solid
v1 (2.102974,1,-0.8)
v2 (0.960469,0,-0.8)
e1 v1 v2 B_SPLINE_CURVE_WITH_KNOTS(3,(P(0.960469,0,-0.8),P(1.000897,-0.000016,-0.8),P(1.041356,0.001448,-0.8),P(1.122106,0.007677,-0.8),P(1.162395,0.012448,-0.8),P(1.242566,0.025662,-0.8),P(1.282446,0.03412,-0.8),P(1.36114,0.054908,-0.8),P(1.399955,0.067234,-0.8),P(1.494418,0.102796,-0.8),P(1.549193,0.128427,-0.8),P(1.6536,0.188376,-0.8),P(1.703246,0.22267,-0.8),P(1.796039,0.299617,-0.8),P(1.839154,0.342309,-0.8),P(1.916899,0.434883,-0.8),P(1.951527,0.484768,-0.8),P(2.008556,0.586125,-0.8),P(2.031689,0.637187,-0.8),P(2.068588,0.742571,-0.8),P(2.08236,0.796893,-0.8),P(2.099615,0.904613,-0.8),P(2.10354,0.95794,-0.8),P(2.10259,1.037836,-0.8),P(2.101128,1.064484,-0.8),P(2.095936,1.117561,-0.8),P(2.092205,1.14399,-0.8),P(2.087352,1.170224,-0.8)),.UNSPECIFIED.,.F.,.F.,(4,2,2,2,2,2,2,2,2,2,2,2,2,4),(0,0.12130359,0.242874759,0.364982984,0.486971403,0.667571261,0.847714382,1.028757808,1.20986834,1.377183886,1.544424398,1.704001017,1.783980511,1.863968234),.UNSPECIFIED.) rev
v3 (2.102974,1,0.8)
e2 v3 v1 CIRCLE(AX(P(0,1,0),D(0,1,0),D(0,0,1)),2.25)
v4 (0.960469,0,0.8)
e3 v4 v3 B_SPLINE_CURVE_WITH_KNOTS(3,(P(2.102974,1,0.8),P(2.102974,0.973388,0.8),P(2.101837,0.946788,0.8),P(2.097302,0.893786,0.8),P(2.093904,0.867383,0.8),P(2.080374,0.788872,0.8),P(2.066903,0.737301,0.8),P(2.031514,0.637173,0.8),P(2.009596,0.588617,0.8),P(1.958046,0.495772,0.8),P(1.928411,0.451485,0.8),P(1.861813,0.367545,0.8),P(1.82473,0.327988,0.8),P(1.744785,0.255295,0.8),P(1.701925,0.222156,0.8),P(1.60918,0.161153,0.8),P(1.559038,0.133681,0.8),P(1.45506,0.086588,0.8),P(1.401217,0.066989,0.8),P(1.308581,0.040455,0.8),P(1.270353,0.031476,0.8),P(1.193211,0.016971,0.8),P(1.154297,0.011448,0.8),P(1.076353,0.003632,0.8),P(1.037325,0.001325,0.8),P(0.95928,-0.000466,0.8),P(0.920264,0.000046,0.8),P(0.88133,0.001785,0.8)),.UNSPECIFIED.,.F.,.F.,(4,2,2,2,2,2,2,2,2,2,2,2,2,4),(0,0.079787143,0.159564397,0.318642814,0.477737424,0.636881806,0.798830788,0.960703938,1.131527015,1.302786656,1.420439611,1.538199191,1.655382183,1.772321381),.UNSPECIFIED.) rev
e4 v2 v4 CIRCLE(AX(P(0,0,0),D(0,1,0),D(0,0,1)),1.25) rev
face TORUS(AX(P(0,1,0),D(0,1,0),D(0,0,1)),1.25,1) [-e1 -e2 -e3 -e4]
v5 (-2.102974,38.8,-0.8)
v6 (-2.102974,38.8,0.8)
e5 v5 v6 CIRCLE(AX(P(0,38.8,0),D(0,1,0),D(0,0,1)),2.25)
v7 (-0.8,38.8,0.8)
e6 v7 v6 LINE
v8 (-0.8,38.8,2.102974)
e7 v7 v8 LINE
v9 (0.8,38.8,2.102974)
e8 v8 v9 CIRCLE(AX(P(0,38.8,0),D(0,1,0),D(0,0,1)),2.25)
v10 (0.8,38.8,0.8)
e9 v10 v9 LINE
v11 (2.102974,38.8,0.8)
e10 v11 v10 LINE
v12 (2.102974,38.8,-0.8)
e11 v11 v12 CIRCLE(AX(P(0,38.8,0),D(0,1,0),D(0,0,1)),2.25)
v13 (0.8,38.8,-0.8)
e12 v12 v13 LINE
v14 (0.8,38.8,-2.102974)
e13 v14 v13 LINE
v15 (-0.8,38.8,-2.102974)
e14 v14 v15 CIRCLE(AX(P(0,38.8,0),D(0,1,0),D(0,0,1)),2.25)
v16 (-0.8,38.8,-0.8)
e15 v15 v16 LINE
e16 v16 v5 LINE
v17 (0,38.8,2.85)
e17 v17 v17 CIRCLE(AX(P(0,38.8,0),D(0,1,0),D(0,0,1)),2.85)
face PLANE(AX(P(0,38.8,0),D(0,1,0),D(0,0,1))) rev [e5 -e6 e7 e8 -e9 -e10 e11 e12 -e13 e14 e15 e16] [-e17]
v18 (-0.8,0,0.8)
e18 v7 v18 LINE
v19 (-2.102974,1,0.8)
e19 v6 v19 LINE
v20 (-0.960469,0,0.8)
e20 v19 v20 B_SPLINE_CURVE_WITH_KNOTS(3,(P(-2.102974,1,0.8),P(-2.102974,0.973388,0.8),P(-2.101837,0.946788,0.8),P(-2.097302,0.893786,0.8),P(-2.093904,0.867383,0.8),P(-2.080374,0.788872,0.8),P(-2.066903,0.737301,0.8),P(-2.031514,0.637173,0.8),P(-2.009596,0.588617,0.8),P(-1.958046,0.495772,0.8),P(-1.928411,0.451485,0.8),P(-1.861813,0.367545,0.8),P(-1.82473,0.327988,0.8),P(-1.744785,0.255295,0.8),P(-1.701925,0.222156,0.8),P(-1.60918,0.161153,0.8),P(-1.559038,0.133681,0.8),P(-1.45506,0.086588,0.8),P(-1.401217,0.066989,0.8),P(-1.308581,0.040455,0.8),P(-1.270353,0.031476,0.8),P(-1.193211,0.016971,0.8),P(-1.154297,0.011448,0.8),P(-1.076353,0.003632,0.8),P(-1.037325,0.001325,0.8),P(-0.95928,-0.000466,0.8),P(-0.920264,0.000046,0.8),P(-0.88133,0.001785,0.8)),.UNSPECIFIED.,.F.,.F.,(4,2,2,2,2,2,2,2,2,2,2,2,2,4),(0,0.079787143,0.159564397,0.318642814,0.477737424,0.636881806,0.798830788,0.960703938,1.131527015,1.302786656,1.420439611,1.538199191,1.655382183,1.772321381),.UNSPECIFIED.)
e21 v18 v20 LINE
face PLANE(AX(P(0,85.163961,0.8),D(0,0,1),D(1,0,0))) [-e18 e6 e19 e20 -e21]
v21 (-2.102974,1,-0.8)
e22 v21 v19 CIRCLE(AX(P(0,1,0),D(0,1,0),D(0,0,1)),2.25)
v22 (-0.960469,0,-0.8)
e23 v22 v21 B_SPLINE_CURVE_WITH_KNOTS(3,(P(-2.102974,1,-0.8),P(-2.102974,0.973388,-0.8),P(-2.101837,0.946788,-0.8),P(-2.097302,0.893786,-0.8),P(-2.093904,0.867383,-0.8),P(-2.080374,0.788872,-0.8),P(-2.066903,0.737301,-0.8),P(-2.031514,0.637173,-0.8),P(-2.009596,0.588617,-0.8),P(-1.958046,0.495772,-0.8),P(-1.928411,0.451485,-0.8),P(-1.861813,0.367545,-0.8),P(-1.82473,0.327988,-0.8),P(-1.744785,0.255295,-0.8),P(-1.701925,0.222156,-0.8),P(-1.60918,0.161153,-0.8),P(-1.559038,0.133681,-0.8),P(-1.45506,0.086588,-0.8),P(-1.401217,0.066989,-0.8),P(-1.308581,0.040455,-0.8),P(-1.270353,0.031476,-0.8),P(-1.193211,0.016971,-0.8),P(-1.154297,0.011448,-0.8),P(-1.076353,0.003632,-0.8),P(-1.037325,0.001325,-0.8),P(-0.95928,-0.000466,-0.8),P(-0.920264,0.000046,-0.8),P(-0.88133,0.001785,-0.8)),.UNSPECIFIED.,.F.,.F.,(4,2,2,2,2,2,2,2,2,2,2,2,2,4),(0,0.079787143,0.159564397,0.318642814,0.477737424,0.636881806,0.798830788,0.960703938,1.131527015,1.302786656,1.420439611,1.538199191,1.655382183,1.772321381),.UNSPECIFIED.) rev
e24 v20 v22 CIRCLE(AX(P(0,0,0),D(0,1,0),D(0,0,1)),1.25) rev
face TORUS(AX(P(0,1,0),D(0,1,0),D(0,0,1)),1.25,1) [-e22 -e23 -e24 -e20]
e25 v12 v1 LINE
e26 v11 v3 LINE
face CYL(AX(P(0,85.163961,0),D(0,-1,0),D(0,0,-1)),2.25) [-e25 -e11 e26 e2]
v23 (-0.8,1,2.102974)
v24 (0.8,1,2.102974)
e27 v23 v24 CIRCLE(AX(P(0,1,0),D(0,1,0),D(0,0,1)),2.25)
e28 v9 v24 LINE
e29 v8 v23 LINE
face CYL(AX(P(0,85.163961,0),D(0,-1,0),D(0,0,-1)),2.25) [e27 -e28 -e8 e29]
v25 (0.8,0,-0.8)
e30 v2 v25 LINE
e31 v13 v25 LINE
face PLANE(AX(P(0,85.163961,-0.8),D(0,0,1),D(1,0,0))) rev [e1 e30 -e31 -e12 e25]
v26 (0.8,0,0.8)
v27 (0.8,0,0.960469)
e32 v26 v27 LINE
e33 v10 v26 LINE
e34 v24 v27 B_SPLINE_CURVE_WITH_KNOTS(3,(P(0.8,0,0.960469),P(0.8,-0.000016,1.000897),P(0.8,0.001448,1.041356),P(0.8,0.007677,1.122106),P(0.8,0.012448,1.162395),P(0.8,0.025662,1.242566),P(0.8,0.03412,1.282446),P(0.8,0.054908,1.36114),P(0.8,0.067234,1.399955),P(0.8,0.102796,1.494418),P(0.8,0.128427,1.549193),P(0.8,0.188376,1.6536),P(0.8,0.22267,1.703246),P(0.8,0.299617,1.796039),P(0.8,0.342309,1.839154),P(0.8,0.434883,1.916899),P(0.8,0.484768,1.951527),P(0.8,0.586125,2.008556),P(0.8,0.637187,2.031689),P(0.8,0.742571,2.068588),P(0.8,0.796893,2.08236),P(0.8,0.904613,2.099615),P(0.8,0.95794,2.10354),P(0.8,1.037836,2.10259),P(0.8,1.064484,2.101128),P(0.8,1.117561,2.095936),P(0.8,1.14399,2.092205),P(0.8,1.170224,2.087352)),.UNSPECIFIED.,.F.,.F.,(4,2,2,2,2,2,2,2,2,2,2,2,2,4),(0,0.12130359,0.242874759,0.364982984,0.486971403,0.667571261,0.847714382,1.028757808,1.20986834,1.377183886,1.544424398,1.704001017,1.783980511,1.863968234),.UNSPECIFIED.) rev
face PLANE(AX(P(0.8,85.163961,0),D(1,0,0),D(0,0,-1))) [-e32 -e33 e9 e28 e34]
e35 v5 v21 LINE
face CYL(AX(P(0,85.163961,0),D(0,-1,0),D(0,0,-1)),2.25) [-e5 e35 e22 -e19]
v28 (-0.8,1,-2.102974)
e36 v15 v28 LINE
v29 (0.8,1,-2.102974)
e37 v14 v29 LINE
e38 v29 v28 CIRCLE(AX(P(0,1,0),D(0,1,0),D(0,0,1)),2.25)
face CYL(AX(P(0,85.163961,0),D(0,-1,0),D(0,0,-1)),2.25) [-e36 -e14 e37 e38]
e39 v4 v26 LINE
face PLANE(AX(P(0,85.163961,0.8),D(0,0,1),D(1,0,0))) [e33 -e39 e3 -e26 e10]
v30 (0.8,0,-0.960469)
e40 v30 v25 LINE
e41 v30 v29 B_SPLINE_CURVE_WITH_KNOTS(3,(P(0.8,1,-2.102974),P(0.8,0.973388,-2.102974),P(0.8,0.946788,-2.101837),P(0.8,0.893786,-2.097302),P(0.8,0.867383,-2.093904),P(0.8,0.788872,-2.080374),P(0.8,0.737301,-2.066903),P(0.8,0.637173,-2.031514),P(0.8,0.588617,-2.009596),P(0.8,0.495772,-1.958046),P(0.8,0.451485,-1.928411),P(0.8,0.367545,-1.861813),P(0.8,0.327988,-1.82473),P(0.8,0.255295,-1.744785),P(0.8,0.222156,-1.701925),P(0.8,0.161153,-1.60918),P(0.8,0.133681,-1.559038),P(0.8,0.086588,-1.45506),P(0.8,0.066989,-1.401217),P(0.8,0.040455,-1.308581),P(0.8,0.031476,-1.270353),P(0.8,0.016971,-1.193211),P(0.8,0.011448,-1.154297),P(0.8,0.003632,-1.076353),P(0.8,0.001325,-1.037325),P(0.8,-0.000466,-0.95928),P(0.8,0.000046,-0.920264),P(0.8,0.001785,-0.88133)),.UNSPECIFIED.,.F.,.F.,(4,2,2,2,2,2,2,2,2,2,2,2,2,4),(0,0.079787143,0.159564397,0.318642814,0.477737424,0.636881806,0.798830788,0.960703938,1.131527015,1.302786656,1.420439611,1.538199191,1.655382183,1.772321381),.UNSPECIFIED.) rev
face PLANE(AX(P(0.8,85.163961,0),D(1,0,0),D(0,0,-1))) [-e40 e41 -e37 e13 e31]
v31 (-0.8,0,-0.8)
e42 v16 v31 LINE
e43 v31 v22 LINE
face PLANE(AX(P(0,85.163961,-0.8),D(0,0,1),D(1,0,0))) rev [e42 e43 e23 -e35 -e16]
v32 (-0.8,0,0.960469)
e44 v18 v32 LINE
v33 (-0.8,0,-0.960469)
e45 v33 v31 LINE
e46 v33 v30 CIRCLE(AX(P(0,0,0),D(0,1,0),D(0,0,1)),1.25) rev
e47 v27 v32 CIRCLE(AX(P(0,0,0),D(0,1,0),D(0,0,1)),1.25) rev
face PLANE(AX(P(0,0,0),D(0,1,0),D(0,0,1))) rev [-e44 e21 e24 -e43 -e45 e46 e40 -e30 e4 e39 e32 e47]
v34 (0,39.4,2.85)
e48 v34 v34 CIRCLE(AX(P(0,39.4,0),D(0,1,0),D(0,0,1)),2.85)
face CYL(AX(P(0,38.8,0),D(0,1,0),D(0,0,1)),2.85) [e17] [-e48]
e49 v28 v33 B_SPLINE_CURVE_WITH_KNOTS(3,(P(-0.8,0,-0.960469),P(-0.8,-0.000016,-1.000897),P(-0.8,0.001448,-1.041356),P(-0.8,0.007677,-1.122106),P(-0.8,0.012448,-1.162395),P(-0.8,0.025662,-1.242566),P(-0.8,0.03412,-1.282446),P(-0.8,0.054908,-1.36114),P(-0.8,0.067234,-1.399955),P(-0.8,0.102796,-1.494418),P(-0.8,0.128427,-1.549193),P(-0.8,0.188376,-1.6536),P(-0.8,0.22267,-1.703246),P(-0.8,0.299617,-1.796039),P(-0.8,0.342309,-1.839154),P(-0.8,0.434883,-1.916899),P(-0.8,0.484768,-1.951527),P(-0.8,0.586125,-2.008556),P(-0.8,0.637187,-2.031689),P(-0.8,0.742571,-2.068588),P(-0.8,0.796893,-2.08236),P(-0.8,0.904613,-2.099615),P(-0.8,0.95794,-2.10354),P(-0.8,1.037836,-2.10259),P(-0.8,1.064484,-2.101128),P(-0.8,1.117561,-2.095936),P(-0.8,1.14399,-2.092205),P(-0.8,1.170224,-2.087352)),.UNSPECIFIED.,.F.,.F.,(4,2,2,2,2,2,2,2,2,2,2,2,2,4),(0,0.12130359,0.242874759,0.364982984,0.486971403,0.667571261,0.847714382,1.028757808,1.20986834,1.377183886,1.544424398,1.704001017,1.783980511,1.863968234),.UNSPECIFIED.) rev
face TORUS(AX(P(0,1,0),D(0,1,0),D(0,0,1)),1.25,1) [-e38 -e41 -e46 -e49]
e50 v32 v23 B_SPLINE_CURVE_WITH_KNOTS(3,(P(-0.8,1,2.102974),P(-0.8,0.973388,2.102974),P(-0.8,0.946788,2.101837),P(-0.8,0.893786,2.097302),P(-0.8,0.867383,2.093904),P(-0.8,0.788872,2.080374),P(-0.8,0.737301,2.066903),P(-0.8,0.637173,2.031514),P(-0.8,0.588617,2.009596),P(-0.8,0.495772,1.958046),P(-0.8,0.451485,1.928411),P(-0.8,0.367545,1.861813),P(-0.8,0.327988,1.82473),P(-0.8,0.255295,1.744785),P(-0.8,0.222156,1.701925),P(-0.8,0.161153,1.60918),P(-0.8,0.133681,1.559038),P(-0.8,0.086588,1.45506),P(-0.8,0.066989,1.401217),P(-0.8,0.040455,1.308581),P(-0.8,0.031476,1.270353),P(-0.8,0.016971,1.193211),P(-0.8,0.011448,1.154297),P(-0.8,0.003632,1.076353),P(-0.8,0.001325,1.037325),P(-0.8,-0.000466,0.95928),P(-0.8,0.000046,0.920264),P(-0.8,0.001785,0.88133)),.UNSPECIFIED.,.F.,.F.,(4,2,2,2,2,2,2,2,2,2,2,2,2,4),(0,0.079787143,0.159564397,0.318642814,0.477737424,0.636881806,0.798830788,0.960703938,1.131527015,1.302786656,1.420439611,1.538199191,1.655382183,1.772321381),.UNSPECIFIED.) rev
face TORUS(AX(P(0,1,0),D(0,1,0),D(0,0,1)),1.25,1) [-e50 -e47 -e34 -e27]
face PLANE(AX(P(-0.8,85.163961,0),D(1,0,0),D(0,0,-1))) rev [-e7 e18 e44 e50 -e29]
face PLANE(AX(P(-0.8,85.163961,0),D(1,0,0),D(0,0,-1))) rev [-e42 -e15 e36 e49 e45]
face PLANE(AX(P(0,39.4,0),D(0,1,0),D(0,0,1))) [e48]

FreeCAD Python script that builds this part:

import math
import FreeCAD as App
import Part
import Sketcher
from FreeCAD import Vector


def edges_at(feature, points):
    """Names of the edges that pass closest to the given points."""
    edges = feature.Shape.Edges
    near = lambda p: min(range(len(edges)), key=lambda i: edges[i].distToShape(Part.Vertex(*p))[0])
    return sorted({f"Edge{near(p) + 1}" for p in points})

doc = App.newDocument("Part")
body = doc.addObject("PartDesign::Body", "Body")

# Sketch on XZ plane
sketch1 = doc.addObject("Sketcher::SketchObject", "Sketch")
body.addObject(sketch1)
sketch1.AttachmentSupport = (doc.XZ_Plane, [""])
sketch1.MapMode = "FlatFace"
sketch1.addGeometry(Part.LineSegment(Vector(-0.8, 0.8, 0), Vector(-0.8, 2.1, 0)), False)
sketch1.addGeometry(Part.ArcOfCircle(Part.Circle(Vector(0, 0, 0), Vector(0, 0, 1), 2.2), math.radians(69), math.radians(111)), False)
sketch1.addGeometry(Part.LineSegment(Vector(0.8, 2.1, 0), Vector(0.8, 0.8, 0)), False)
sketch1.addGeometry(Part.LineSegment(Vector(0.8, 0.8, 0), Vector(2.1, 0.8, 0)), False)
sketch1.addGeometry(Part.ArcOfCircle(Part.Circle(Vector(0, 0, 0), Vector(0, 0, 1), 2.2), math.radians(-21), math.radians(21)), False)
sketch1.addGeometry(Part.LineSegment(Vector(2.1, -0.8, 0), Vector(0.8, -0.8, 0)), False)
sketch1.addGeometry(Part.LineSegment(Vector(0.8, -0.8, 0), Vector(0.8, -2.1, 0)), False)
sketch1.addGeometry(Part.ArcOfCircle(Part.Circle(Vector(0, 0, 0), Vector(0, 0, 1), 2.2), math.radians(-111), math.radians(-69)), False)
sketch1.addGeometry(Part.LineSegment(Vector(-0.8, -2.1, 0), Vector(-0.8, -0.8, 0)), False)
sketch1.addGeometry(Part.LineSegment(Vector(-0.8, -0.8, 0), Vector(-2.1, -0.8, 0)), False)
sketch1.addGeometry(Part.ArcOfCircle(Part.Circle(Vector(0, 0, 0), Vector(0, 0, 1), 2.2), math.radians(159), math.radians(201)), False)
sketch1.addGeometry(Part.LineSegment(Vector(-2.1, 0.8, 0), Vector(-0.8, 0.8, 0)), False)
sketch1.addConstraint(Sketcher.Constraint("Coincident", 0, 2, 1, 2))
sketch1.addConstraint(Sketcher.Constraint("Coincident", 1, 1, 2, 1))
sketch1.addConstraint(Sketcher.Constraint("Coincident", 2, 2, 3, 1))
sketch1.addConstraint(Sketcher.Constraint("Coincident", 3, 2, 4, 2))
sketch1.addConstraint(Sketcher.Constraint("Coincident", 4, 1, 5, 1))
sketch1.addConstraint(Sketcher.Constraint("Coincident", 5, 2, 6, 1))
sketch1.addConstraint(Sketcher.Constraint("Coincident", 6, 2, 7, 2))
sketch1.addConstraint(Sketcher.Constraint("Coincident", 7, 1, 8, 1))
sketch1.addConstraint(Sketcher.Constraint("Coincident", 8, 2, 9, 1))
sketch1.addConstraint(Sketcher.Constraint("Coincident", 9, 2, 10, 2))
sketch1.addConstraint(Sketcher.Constraint("Coincident", 10, 1, 11, 1))
sketch1.addConstraint(Sketcher.Constraint("Coincident", 11, 2, 0, 1))
sketch1.addConstraint(Sketcher.Constraint("Vertical", 0))
sketch1.addConstraint(Sketcher.Constraint("Vertical", 2))
sketch1.addConstraint(Sketcher.Constraint("Horizontal", 3))
sketch1.addConstraint(Sketcher.Constraint("Horizontal", 5))
sketch1.addConstraint(Sketcher.Constraint("Vertical", 6))
sketch1.addConstraint(Sketcher.Constraint("Vertical", 8))
sketch1.addConstraint(Sketcher.Constraint("Horizontal", 9))
sketch1.addConstraint(Sketcher.Constraint("Horizontal", 11))
sketch1.addConstraint(Sketcher.Constraint("Coincident", 1, 3, -1, 1))
sketch1.addConstraint(Sketcher.Constraint("Coincident", 4, 3, -1, 1))
sketch1.addConstraint(Sketcher.Constraint("Coincident", 7, 3, -1, 1))
sketch1.addConstraint(Sketcher.Constraint("Coincident", 10, 3, -1, 1))
sketch1.addConstraint(Sketcher.Constraint("Equal", 1, 4))
sketch1.addConstraint(Sketcher.Constraint("Equal", 4, 7))
sketch1.addConstraint(Sketcher.Constraint("Equal", 7, 10))
sketch1.addConstraint(Sketcher.Constraint("Symmetric", 2, 2, 8, 2, -1, 1))
sketch1.addConstraint(Sketcher.Constraint("Symmetric", 5, 2, 11, 2, -1, 1))
sketch1.addConstraint(Sketcher.Constraint("Symmetric", 5, 2, 8, 2, -2))
sketch1.addConstraint(Sketcher.Constraint("Equal", 11, 0))
sketch1.addConstraint(Sketcher.Constraint("Radius", 1, 2.25))
sketch1.addConstraint(Sketcher.Constraint("DistanceX", 0, 2, -1, 1, 0.8))
pad1 = doc.addObject("PartDesign::Pad", "Pad")
body.addObject(pad1)
pad1.Profile = sketch1
pad1.Length = 39.4
pad1.Reversed = True
doc.recompute()

fillet = doc.addObject("PartDesign::Fillet", "Fillet")
body.addObject(fillet)
fillet.Base = (pad1, edges_at(pad1, [(-2.25, 0, 0)]))
fillet.Radius = 1
doc.recompute()

fillet2 = doc.addObject("PartDesign::Fillet", "Fillet001")
body.addObject(fillet2)
fillet2.Base = (fillet, edges_at(fillet, [(0, 0, 2.25)]))
fillet2.Radius = 1
doc.recompute()

fillet3 = doc.addObject("PartDesign::Fillet", "Fillet002")
body.addObject(fillet3)
fillet3.Base = (fillet2, edges_at(fillet2, [(2.25, 0, 0)]))
fillet3.Radius = 1
doc.recompute()

fillet4 = doc.addObject("PartDesign::Fillet", "Fillet003")
body.addObject(fillet4)
fillet4.Base = (fillet3, edges_at(fillet3, [(0, 0, -2.25)]))
fillet4.Radius = 1

# Sketch on XZ plane
sketch2 = doc.addObject("Sketcher::SketchObject", "Sketch001")
body.addObject(sketch2)
sketch2.AttachmentSupport = (doc.XZ_Plane, [""])
sketch2.MapMode = "FlatFace"
sketch2.AttachmentOffset = App.Placement(Vector(0, 0, -39.4), App.Rotation())
sketch2.addGeometry(Part.Circle(Vector(0, 0, 0), Vector(0, 0, 1), 2.9), False)
sketch2.addConstraint(Sketcher.Constraint("Coincident", 0, 3, -1, 1))
sketch2.addConstraint(Sketcher.Constraint("Diameter", 0, 5.7))
pad2 = doc.addObject("PartDesign::Pad", "Pad001")
body.addObject(pad2)
pad2.Profile = sketch2
pad2.Length = 0.6

doc.recompute()
